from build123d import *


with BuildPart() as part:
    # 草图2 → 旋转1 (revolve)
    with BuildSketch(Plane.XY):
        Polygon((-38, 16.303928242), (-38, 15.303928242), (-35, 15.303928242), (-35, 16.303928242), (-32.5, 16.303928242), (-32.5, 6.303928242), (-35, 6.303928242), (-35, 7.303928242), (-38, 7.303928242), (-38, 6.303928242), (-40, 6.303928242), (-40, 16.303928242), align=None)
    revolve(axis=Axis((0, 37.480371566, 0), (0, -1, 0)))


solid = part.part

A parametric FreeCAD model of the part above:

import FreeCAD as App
import Part
import Sketcher


def add_polygon(sketch, points):
    """Adds a closed chain of lines whose ends are joined by coincident constraints."""
    first, n = sketch.GeometryCount, len(points)
    for a, b in zip(points, points[1:] + points[:1]):
        sketch.addGeometry(Part.LineSegment(App.Vector(*a, 0), App.Vector(*b, 0)), False)
    for i in range(n):
        sketch.addConstraint(Sketcher.Constraint("Coincident", first + i, 2, first + (i + 1) % n, 1))

doc = App.newDocument("Part")
params = doc.addObject("Spreadsheet::Sheet", "Params")
for row, (alias, value) in enumerate([
    ("sketch1_width", "2 mm"),
    ("sketch1_width2", "3 mm"),
    ("sketch1_height", "1 mm"),
    ("sketch1_height2", "10 mm"),
    ("sketch1_width3", "2.5 mm"),
    ("revolution_angle", "360 deg"),
], start=1):
    params.set(f"A{row}", alias)
    params.set(f"B{row}", "=" + value)
    params.setAlias(f"B{row}", alias)

body = doc.addObject("PartDesign::Body", "Body")

sketch1 = doc.addObject("Sketcher::SketchObject", "Sketch")
body.addObject(sketch1)
sketch1.AttachmentSupport = (doc.XY_Plane, [""])
sketch1.MapMode = "FlatFace"
add_polygon(sketch1, [(-38, 15.303928), (-38, 16.303928), (-40, 16.303928), (-40, 6.303928), (-38, 6.303928), (-38, 7.303928), (-35, 7.303928), (-35, 6.303928), (-32.5, 6.303928), (-32.5, 16.303928), (-35, 16.303928), (-35, 15.303928)])
sketch1.addConstraint([
    Sketcher.Constraint("Vertical", 0),
    Sketcher.Constraint("Horizontal", 1),
    Sketcher.Constraint("Vertical", 2),
    Sketcher.Constraint("Horizontal", 3),
    Sketcher.Constraint("Vertical", 4),
    Sketcher.Constraint("Horizontal", 5),
    Sketcher.Constraint("Vertical", 6),
    Sketcher.Constraint("Horizontal", 7),
    Sketcher.Constraint("Vertical", 8),
    Sketcher.Constraint("Horizontal", 9),
    Sketcher.Constraint("Vertical", 10),
    Sketcher.Constraint("Horizontal", 11),
    Sketcher.Constraint("Horizontal", 3, 2, 6, 2),
    Sketcher.Constraint("Horizontal", 1, 2, 8, 2),
    Sketcher.Constraint("Vertical", 0, 2, 3, 2),
    Sketcher.Constraint("Vertical", 6, 2, 9, 2),
    Sketcher.Constraint("Equal", 0, 4),
    Sketcher.Constraint("DistanceX", 1, 2, 1, 1, 2.0),
    Sketcher.Constraint("DistanceX", 5, 1, 5, 2, 3.0),
    Sketcher.Constraint("DistanceY", 0, 1, 0, 2, 1.0),
    Sketcher.Constraint("DistanceY", 2, 2, 2, 1, 10.0),
    Sketcher.Constraint("DistanceX", 7, 1, 7, 2, 2.5),
    Sketcher.Constraint("DistanceX", 0, 2, -1, 1, 38.0),
    Sketcher.Constraint("DistanceY", -1, 1, 0, 2, 16.303928),
])
sketch1.setExpression("Constraints[29]", "Params.sketch1_width")
sketch1.setExpression("Constraints[30]", "Params.sketch1_width2")
sketch1.setExpression("Constraints[31]", "Params.sketch1_height")
sketch1.setExpression("Constraints[32]", "Params.sketch1_height2")
sketch1.setExpression("Constraints[33]", "Params.sketch1_width3")
revolution = doc.addObject("PartDesign::Revolution", "Revolution")
body.addObject(revolution)
revolution.Profile = sketch1
revolution.ReferenceAxis = (sketch1, ["V_Axis"])
revolution.setExpression("Angle", "Params.revolution_angle")

doc.recompute()
